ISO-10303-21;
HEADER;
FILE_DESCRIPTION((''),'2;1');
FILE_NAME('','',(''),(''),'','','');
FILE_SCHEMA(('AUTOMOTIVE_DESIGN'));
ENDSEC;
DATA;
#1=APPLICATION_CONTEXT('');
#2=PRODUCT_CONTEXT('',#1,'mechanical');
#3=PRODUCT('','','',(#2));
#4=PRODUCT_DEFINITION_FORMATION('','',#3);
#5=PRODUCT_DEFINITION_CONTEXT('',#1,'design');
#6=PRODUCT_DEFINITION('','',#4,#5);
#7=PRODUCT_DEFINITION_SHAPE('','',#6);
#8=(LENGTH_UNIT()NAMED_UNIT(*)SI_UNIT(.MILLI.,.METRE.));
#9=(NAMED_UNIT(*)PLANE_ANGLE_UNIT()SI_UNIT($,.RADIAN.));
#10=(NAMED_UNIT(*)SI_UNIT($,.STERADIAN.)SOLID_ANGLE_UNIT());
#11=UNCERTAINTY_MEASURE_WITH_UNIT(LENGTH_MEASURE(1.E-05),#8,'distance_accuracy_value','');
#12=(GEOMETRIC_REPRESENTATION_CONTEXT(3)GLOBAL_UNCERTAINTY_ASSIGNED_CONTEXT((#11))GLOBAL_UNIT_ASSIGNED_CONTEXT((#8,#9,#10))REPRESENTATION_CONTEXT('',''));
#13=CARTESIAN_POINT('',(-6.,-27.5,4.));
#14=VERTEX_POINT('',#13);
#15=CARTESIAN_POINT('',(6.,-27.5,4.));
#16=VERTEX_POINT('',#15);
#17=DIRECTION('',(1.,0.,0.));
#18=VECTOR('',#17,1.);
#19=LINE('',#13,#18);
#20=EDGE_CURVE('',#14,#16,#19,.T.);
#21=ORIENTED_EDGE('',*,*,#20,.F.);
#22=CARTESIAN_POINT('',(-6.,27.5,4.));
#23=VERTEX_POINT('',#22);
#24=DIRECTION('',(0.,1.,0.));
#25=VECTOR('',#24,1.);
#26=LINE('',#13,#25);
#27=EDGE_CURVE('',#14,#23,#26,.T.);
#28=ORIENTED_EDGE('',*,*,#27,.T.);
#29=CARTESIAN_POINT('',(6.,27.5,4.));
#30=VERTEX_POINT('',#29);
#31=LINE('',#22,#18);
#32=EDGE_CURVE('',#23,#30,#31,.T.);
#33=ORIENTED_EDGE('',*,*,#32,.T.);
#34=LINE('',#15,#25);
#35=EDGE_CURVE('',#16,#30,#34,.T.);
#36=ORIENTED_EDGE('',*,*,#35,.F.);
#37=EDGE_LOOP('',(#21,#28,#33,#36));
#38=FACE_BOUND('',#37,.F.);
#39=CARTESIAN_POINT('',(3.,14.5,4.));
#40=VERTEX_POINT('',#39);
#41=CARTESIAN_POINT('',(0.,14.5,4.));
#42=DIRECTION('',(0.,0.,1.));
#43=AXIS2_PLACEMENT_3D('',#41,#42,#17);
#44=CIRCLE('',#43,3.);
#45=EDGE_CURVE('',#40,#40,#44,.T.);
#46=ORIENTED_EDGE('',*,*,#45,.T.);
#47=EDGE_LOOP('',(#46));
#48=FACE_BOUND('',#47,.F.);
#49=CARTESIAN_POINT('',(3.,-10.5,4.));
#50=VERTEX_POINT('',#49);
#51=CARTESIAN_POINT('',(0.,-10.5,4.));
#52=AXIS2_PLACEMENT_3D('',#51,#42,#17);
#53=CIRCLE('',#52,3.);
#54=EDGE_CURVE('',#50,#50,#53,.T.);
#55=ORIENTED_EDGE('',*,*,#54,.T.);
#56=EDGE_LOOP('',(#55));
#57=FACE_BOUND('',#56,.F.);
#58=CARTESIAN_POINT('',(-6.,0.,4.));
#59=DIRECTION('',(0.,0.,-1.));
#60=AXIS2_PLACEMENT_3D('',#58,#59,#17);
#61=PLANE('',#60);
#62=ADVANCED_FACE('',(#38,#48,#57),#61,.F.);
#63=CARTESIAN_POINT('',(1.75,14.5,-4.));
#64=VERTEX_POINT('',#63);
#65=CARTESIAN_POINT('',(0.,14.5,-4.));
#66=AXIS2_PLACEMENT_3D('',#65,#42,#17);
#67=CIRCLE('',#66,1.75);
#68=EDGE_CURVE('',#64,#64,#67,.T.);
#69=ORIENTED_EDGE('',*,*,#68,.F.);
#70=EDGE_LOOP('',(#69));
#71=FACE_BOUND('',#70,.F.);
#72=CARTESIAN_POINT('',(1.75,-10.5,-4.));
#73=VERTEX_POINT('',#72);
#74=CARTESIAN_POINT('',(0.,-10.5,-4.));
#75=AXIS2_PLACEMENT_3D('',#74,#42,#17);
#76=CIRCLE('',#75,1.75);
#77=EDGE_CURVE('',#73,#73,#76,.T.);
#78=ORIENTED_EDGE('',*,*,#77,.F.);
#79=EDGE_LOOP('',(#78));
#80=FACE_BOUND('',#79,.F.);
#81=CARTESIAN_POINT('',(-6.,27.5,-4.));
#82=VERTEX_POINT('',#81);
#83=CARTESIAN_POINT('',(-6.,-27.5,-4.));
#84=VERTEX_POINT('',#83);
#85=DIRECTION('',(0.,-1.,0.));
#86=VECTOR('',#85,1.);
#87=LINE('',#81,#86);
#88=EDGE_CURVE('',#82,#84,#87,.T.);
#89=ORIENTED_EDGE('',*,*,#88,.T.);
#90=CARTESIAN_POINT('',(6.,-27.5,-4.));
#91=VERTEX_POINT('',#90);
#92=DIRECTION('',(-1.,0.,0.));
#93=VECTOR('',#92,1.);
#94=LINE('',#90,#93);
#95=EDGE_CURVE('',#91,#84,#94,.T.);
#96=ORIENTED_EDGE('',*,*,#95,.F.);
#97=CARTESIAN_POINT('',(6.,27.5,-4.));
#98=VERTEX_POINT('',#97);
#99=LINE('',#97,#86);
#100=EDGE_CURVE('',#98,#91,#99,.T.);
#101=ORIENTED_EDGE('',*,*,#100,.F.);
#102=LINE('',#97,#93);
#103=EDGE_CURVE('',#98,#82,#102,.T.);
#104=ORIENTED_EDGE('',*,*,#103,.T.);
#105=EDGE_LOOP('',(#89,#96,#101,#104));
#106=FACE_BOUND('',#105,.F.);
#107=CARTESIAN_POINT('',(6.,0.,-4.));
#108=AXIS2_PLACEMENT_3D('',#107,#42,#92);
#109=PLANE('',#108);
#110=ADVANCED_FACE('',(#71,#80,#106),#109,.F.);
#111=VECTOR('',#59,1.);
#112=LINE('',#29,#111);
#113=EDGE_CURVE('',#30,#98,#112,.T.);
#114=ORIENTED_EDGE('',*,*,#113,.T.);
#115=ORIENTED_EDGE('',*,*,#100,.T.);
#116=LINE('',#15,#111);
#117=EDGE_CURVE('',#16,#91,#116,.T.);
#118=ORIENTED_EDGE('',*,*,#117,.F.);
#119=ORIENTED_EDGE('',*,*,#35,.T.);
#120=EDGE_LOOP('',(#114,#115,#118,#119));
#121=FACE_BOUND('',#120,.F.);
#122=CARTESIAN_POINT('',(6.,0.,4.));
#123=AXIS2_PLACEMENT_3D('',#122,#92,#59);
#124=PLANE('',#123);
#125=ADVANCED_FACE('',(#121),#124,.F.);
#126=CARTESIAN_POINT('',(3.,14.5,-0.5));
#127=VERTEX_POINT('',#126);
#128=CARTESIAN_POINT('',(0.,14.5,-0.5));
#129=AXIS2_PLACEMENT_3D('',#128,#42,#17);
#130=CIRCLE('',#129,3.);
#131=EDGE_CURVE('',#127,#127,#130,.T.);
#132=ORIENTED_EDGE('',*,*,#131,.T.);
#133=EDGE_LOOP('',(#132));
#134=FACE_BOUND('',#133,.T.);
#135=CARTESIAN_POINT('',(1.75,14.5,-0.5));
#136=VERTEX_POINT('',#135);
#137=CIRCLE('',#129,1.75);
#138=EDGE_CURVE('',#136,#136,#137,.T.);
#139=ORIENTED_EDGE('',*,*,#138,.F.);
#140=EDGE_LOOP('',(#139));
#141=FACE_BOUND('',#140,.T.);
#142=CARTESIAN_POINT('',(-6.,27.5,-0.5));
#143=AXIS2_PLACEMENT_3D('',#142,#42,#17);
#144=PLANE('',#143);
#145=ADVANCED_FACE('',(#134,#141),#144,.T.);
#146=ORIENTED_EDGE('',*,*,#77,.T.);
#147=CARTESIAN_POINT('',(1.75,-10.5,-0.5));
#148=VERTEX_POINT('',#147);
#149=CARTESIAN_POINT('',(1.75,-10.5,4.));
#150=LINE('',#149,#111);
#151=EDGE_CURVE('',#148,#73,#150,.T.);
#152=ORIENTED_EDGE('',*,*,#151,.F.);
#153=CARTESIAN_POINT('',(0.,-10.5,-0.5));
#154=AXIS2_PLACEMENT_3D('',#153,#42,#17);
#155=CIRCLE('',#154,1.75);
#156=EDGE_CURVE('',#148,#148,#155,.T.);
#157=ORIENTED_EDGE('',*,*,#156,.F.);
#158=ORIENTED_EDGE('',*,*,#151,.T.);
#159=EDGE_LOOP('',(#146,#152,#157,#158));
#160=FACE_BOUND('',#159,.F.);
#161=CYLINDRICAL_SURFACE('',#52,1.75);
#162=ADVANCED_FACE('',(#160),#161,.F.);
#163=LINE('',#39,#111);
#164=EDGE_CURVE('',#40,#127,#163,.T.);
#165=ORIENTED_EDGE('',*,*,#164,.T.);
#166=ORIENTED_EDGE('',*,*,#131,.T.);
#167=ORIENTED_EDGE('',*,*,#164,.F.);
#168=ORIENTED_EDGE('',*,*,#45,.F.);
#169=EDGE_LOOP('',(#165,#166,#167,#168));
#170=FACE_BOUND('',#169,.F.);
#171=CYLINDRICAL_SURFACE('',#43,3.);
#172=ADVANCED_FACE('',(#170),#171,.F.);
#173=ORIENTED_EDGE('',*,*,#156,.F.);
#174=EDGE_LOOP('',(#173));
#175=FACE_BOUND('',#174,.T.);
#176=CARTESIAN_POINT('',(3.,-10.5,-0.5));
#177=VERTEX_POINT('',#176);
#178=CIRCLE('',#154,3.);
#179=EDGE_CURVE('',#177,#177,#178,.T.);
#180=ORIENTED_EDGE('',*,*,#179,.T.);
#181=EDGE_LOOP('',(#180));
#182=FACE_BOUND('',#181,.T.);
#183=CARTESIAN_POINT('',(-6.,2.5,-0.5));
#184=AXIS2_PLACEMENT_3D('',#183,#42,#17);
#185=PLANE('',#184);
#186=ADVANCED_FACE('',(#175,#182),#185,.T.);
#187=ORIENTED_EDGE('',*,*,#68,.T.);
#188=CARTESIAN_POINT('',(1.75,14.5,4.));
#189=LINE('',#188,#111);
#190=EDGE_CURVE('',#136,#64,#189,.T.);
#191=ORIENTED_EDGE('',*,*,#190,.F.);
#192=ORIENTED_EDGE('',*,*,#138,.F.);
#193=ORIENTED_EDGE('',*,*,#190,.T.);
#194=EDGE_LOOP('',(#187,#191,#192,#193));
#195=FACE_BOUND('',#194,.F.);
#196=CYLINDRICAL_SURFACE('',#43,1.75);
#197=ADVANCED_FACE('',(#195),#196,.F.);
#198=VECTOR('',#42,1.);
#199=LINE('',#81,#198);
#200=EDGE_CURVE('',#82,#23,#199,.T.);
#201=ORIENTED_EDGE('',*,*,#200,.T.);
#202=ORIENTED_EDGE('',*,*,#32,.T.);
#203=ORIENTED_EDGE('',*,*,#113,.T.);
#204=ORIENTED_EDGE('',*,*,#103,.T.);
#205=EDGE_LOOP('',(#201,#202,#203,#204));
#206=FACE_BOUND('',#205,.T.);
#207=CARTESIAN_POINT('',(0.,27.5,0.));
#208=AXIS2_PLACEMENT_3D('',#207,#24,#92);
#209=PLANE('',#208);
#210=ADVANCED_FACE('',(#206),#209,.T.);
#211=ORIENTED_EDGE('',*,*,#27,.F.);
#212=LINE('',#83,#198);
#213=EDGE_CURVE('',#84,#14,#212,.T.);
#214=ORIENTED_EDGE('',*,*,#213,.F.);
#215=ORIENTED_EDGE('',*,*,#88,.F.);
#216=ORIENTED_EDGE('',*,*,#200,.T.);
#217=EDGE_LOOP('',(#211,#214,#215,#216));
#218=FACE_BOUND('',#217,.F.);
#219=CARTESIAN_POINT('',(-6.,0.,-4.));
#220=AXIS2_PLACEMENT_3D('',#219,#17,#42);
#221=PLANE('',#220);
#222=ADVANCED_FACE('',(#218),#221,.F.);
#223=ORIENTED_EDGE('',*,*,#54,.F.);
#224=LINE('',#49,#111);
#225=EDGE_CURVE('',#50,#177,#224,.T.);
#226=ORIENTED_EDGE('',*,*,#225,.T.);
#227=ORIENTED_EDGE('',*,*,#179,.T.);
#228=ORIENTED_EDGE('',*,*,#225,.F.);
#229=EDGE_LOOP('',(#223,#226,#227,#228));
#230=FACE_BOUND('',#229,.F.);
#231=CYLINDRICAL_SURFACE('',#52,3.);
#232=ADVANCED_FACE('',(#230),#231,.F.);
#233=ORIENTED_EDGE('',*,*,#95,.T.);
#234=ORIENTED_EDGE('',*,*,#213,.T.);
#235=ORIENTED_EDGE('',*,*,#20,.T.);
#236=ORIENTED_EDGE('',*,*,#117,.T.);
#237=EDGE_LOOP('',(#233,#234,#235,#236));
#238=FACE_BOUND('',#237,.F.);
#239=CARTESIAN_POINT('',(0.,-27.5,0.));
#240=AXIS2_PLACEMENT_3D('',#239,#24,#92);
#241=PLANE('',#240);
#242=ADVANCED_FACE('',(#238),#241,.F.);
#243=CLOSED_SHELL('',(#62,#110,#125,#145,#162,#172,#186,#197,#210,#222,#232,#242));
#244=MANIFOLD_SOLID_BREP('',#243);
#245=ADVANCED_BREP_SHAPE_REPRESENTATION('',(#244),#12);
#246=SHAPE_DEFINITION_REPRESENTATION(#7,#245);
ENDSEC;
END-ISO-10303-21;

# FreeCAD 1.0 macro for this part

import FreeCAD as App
import Part
import Sketcher
Q = App.Units.Quantity


def add_polygon(sketch, points):
    """Adds a closed chain of lines whose ends are joined by coincident constraints."""
    first, n = sketch.GeometryCount, len(points)
    for a, b in zip(points, points[1:] + points[:1]):
        sketch.addGeometry(Part.LineSegment(App.Vector(*a, 0), App.Vector(*b, 0)), False)
    for i in range(n):
        sketch.addConstraint(Sketcher.Constraint("Coincident", first + i, 2, first + (i + 1) % n, 1))

doc = App.newDocument("Part")
params = doc.addObject("Spreadsheet::Sheet", "Params")
for row, (alias, value) in enumerate([
    ("sketch1_width", "12 mm"),
    ("sketch1_height", "8 mm"),
    ("pad1_length", "55 mm"),
    ("sketch2_diameter", "3.5 mm"),
    ("sketch3_diameter", "6 mm"),
    ("sketch3_diameter2", "3.5 mm"),
    ("pocket2_length", "4.5 mm"),
    ("linearpattern_pitch", "25 mm"),
], start=1):
    params.set(f"A{row}", alias)
    params.set(f"B{row}", "=" + value)
    params.setAlias(f"B{row}", alias)

body = doc.addObject("PartDesign::Body", "Body")

# Sketch on XZ plane
sketch1 = body.newObject("Sketcher::SketchObject", "Sketch")
sketch1.AttachmentSupport = (doc.getObject("XZ_Plane"), [""])
sketch1.MapMode = "FlatFace"
add_polygon(sketch1, [(-6, -4), (-6, 4), (6, 4), (6, -4)])  # lines 0-3
sketch1.addConstraint(Sketcher.Constraint("Vertical", 0))
sketch1.addConstraint(Sketcher.Constraint("Horizontal", 1))
sketch1.addConstraint(Sketcher.Constraint("Vertical", 2))
sketch1.addConstraint(Sketcher.Constraint("Horizontal", 3))
sketch1.addConstraint(Sketcher.Constraint("Symmetric", 0, 2, 2, 2, -1, 1))
sketch1.addConstraint(Sketcher.Constraint("DistanceX", 1, 1, 1, 2, Q("12 mm")))
sketch1.addConstraint(Sketcher.Constraint("DistanceY", 0, 1, 0, 2, Q("8 mm")))
sketch1.setExpression("Constraints[9]", "Params.sketch1_width")
sketch1.setExpression("Constraints[10]", "Params.sketch1_height")
pad1 = body.newObject("PartDesign::Pad", "Pad")
pad1.Profile = sketch1
pad1.setExpression("Length", "Params.pad1_length")
pad1.Midplane = True

# Sketch on XY plane
sketch2 = body.newObject("Sketcher::SketchObject", "Sketch001")
sketch2.AttachmentSupport = (doc.getObject("XY_Plane"), [""])
sketch2.MapMode = "FlatFace"
sketch2.AttachmentOffset = App.Placement(App.Vector(0, 0, 4), App.Rotation())
sketch2.addGeometry(Part.Circle(App.Vector(0, 14.5, 0), App.Vector(0, 0, 1), 1.8), False)
sketch2.addConstraint(Sketcher.Constraint("PointOnObject", 0, 3, -2))
sketch2.addConstraint(Sketcher.Constraint("Diameter", 0, Q("3.5 mm")))
sketch2.addConstraint(Sketcher.Constraint("DistanceY", -1, 1, 0, 3, Q("14.5 mm")))
sketch2.setExpression("Constraints[1]", "Params.sketch2_diameter")
pocket1 = body.newObject("PartDesign::Pocket", "Pocket")
pocket1.Profile = sketch2
pocket1.Type = "UpToFirst"

# Sketch on XY plane
sketch3 = body.newObject("Sketcher::SketchObject", "Sketch002")
sketch3.AttachmentSupport = (doc.getObject("XY_Plane"), [""])
sketch3.MapMode = "FlatFace"
sketch3.AttachmentOffset = App.Placement(App.Vector(0, 0, 4), App.Rotation())
sketch3.addGeometry(Part.Circle(App.Vector(0, 14.5, 0), App.Vector(0, 0, 1), 3), False)
sketch3.addGeometry(Part.Circle(App.Vector(0, 14.5, 0), App.Vector(0, 0, 1), 1.8), False)
sketch3.addConstraint(Sketcher.Constraint("Coincident", 1, 3, 0, 3))
sketch3.addConstraint(Sketcher.Constraint("PointOnObject", 0, 3, -2))
sketch3.addConstraint(Sketcher.Constraint("Diameter", 0, Q("6 mm")))
sketch3.addConstraint(Sketcher.Constraint("Diameter", 1, Q("3.5 mm")))
sketch3.addConstraint(Sketcher.Constraint("DistanceY", -1, 1, 0, 3, Q("14.5 mm")))
sketch3.setExpression("Constraints[2]", "Params.sketch3_diameter")
sketch3.setExpression("Constraints[3]", "Params.sketch3_diameter2")
pocket2 = body.newObject("PartDesign::Pocket", "Pocket001")
pocket2.Profile = sketch3
pocket2.setExpression("Length", "Params.pocket2_length")
doc.recompute()

linearpattern = body.newObject("PartDesign::LinearPattern", "LinearPattern")
linearpattern.Originals = [pocket2, pocket1]
linearpattern.Direction = (doc.getObject("Y_Axis"), [""])
linearpattern.Mode = "offset"
linearpattern.setExpression("Offset", "Params.linearpattern_pitch")
linearpattern.Occurrences = 2
linearpattern.Reversed = True
body.Tip = linearpattern

doc.recompute()
